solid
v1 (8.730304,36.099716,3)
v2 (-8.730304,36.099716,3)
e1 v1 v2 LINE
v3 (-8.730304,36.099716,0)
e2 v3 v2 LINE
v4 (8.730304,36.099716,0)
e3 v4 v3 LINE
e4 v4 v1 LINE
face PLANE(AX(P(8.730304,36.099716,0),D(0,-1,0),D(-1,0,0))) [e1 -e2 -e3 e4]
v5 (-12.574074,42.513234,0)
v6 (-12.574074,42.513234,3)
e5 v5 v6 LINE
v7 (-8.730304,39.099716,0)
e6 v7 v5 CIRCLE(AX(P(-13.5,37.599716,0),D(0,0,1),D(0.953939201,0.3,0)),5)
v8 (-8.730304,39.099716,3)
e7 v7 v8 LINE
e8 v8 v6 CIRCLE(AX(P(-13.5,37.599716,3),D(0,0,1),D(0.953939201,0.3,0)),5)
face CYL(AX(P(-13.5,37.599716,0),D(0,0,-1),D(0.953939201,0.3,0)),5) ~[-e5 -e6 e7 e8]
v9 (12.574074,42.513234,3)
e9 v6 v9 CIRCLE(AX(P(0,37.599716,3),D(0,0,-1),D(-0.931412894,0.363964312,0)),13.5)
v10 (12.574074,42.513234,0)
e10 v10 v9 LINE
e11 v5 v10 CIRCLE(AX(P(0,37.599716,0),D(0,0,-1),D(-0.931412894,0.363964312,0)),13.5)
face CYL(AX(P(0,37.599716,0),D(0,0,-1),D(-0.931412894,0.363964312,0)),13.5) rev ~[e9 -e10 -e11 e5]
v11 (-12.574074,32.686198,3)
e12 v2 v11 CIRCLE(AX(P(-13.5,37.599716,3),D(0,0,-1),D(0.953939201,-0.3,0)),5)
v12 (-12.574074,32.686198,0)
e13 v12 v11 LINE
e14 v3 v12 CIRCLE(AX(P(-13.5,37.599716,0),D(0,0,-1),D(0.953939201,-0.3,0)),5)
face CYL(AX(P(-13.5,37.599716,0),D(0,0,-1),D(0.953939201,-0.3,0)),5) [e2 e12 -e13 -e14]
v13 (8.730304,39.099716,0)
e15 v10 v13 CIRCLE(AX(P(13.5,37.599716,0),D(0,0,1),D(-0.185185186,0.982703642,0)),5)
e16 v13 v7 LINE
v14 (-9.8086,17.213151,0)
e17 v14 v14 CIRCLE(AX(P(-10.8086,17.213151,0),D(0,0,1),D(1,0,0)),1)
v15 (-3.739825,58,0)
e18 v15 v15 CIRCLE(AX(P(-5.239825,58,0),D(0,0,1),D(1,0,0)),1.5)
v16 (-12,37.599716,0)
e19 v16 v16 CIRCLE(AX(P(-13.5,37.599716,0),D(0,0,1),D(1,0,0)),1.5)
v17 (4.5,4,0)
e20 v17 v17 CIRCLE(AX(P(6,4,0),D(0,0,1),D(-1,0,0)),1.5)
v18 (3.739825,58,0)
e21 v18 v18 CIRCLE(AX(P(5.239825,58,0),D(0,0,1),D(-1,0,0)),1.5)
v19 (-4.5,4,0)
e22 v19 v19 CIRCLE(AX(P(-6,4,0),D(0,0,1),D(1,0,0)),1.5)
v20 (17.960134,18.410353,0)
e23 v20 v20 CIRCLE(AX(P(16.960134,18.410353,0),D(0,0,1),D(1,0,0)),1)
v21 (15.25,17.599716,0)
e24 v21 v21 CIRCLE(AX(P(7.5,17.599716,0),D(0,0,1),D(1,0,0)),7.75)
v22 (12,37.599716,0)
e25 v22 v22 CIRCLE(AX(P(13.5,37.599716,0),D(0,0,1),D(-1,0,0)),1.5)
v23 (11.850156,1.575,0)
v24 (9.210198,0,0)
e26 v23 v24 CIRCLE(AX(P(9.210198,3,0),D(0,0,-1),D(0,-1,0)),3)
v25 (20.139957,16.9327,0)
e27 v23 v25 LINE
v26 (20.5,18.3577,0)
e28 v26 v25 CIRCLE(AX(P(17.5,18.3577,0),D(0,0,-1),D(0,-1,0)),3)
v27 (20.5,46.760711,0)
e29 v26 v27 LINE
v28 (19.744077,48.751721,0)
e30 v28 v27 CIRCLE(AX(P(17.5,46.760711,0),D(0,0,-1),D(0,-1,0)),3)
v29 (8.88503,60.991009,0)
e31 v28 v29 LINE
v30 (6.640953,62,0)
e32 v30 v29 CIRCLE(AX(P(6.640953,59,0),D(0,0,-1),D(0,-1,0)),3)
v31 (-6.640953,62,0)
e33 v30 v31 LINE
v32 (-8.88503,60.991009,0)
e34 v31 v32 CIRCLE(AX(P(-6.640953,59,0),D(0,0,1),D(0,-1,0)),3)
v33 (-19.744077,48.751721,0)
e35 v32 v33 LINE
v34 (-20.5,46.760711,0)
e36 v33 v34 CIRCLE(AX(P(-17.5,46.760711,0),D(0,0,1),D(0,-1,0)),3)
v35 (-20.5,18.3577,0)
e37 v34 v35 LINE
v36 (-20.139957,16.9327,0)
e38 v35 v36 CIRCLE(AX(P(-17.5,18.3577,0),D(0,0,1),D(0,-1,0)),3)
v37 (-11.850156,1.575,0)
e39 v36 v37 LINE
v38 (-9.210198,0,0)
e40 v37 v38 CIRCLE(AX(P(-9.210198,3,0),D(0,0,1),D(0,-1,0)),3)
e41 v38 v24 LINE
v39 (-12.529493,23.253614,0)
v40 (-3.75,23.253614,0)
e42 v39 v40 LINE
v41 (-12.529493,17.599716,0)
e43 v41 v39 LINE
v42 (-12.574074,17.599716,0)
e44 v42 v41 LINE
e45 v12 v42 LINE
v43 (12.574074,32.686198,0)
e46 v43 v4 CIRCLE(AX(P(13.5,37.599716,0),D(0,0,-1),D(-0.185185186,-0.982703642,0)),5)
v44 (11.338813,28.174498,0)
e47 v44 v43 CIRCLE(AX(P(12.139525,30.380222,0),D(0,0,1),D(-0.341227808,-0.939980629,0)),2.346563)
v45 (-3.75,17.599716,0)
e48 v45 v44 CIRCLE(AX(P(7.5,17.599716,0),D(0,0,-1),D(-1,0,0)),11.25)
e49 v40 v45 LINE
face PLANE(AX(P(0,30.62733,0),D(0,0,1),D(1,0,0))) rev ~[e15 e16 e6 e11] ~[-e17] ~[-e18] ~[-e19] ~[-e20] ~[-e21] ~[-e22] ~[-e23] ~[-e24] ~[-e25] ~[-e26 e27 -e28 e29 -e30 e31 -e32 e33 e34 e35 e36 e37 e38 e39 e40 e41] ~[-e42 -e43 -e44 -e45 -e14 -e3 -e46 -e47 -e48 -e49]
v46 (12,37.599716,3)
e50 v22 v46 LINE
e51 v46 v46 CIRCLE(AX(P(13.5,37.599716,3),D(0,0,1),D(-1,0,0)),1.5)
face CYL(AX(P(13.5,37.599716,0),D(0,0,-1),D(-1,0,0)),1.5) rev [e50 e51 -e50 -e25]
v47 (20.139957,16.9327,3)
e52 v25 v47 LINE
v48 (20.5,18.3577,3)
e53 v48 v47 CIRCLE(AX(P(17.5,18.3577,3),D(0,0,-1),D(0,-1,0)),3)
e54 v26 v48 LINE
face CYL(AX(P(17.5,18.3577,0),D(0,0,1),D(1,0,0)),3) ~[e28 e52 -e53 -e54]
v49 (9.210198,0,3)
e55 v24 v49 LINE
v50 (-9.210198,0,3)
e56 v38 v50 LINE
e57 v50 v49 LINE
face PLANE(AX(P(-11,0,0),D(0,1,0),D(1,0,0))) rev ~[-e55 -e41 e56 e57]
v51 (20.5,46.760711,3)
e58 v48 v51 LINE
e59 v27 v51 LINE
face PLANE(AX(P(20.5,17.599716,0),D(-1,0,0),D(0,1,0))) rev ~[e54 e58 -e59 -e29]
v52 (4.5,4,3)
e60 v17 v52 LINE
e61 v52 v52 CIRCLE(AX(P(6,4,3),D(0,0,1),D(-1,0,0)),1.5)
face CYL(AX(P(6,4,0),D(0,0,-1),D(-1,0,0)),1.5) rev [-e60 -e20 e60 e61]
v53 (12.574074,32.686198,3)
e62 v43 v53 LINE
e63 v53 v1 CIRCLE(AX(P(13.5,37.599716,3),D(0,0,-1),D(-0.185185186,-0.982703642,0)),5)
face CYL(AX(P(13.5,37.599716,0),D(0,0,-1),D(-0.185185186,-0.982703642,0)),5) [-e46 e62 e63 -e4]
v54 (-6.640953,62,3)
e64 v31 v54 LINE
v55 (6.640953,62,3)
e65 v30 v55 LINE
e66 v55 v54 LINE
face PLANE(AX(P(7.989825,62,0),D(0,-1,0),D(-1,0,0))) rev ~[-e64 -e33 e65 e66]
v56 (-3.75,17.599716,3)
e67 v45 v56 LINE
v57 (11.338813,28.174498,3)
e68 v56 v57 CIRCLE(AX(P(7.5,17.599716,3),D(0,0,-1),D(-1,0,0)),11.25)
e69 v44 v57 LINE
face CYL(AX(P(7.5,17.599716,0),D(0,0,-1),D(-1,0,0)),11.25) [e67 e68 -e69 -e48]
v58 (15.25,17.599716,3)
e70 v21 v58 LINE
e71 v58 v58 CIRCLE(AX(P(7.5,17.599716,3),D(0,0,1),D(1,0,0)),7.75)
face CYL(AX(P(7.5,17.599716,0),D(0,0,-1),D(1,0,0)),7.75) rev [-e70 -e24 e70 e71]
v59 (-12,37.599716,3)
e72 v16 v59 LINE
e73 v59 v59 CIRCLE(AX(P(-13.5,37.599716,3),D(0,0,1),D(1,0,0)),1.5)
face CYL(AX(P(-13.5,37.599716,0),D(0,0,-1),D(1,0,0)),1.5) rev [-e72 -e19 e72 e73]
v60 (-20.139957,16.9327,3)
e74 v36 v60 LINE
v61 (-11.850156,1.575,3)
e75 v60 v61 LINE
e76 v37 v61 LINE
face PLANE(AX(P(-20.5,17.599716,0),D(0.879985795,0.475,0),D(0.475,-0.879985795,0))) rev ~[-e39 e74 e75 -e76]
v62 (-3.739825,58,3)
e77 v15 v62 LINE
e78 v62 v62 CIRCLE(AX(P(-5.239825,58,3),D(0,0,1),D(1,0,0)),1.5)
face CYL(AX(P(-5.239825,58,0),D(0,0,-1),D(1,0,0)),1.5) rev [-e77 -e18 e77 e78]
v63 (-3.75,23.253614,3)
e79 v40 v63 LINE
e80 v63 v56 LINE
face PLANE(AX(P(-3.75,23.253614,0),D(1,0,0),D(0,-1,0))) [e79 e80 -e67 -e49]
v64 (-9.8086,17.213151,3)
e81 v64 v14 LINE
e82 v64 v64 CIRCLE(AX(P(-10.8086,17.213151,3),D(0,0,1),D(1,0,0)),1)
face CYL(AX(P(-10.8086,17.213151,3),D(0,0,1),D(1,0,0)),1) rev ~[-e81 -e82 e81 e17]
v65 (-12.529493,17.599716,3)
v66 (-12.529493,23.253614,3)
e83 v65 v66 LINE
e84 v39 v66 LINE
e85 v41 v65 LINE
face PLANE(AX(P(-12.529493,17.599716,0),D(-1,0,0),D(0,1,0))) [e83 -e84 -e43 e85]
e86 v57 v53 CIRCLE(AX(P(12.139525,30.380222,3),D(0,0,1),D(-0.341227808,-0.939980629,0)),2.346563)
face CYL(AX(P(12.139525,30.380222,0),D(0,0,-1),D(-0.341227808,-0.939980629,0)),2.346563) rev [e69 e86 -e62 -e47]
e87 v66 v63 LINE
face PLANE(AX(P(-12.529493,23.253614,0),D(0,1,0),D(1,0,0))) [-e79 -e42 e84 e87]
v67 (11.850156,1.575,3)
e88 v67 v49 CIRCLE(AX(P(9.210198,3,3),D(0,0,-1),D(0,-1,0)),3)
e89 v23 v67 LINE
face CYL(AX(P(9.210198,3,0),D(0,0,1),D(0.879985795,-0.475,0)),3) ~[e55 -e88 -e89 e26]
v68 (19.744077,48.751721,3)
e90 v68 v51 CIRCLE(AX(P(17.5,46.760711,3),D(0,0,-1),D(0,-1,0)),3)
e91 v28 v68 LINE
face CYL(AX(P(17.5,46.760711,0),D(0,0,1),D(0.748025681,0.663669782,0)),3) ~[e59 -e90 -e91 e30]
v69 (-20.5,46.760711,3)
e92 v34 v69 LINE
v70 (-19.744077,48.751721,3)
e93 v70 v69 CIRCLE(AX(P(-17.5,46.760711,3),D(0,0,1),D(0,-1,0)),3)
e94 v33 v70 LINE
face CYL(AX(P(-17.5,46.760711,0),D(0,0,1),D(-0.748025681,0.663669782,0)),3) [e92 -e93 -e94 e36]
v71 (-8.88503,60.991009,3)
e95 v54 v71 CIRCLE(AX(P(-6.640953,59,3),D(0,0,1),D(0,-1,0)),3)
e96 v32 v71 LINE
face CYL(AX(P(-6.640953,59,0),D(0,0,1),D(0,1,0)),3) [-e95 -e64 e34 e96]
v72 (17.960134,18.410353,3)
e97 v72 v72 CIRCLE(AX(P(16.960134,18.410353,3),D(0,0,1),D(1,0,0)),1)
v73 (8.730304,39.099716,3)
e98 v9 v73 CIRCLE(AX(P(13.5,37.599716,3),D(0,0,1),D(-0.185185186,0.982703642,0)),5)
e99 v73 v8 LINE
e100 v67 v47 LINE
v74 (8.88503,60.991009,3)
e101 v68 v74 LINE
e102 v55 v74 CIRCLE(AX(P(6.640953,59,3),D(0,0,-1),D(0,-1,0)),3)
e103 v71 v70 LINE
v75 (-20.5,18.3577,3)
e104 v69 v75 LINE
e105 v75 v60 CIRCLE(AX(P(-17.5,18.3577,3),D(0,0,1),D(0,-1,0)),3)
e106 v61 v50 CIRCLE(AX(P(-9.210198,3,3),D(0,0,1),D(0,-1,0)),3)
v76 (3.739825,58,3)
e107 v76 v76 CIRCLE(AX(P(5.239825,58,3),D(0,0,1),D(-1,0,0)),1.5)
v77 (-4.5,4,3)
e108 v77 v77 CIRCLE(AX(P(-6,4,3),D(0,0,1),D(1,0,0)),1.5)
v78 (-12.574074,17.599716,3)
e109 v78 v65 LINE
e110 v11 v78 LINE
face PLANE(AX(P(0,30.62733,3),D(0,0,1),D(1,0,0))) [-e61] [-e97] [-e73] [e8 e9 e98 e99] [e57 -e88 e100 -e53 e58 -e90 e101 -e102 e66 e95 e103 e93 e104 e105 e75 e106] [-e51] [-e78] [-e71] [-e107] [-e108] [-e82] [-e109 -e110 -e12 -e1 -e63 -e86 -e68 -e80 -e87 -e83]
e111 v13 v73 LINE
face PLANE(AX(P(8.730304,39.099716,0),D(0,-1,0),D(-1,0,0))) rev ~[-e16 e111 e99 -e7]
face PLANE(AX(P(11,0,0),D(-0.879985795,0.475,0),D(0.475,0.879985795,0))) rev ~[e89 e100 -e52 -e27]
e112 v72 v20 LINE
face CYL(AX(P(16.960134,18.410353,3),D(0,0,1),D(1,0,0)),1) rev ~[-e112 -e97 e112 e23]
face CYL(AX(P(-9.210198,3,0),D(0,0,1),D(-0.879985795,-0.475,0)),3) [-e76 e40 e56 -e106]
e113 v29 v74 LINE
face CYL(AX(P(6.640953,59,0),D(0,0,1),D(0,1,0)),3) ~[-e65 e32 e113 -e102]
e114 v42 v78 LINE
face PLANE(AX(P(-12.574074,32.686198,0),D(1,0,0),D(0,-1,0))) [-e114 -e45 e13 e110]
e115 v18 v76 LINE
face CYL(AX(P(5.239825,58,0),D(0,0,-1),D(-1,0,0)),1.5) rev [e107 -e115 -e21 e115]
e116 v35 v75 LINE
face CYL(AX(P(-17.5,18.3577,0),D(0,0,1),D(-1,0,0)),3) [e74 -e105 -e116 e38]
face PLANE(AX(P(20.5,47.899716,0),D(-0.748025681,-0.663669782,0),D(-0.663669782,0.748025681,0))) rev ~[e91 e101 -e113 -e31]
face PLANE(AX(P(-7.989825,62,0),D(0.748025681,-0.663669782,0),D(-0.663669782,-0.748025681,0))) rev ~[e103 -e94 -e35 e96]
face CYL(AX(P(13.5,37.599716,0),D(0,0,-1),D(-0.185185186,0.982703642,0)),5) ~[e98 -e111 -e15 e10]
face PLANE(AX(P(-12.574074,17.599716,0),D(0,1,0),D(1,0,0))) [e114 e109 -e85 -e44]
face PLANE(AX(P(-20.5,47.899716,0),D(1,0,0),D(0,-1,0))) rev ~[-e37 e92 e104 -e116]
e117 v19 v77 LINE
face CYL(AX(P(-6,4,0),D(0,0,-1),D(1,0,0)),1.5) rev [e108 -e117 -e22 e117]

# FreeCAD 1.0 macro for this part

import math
import FreeCAD as App
import Part
import Sketcher
from FreeCAD import Vector
Q = App.Units.Quantity


def edges_at(feature, points):
    """Names of the edges that pass closest to the given points."""
    edges = feature.Shape.Edges
    near = lambda p: min(range(len(edges)), key=lambda i: edges[i].distToShape(Part.Vertex(*p))[0])
    return sorted({f"Edge{near(p) + 1}" for p in points})


def add_polygon(sketch, points):
    """Adds a closed chain of lines whose ends are joined by coincident constraints."""
    first, n = sketch.GeometryCount, len(points)
    for a, b in zip(points, points[1:] + points[:1]):
        sketch.addGeometry(Part.LineSegment(App.Vector(*a, 0), App.Vector(*b, 0)), False)
    for i in range(n):
        sketch.addConstraint(Sketcher.Constraint("Coincident", first + i, 2, first + (i + 1) % n, 1))

doc = App.newDocument("Part")
params = doc.addObject("Spreadsheet::Sheet", "Params")
for row, (alias, value) in enumerate([
    ("sketch1_diameter", "3 mm"),
    ("sketch1_radius", "5 mm"),
    ("sketch1_diameter2", "15.5 mm"),
    ("sketch1_radius2", "13.5 mm"),
    ("sketch1_width", "22 mm"),
    ("pad1_length", "3 mm"),
    ("fillet_radius", "3 mm"),
    ("sketch2_diameter", "2 mm"),
    ("pocket1_length", "10 mm"),
], start=1):
    params.set(f"A{row}", alias)
    params.set(f"B{row}", "=" + value)
    params.setAlias(f"B{row}", alias)

body = doc.addObject("PartDesign::Body", "Body")

sketch1 = body.newObject("Sketcher::SketchObject", "Sketch")
sketch1.AttachmentSupport = (doc.getObject("XY_Plane"), [""])
sketch1.MapMode = "FlatFace"
add_polygon(sketch1, [(7.99, 62), (-7.99, 62), (-20.5, 47.9), (-20.5, 17.6), (-11, 0), (11, 0), (20.5, 17.6), (20.5, 47.9)])
sketch1.addGeometry(Part.Circle(Vector(-6, 4, 0), Vector(0, 0, 1), 1.5), False)
sketch1.addGeometry(Part.Circle(Vector(6, 4, 0), Vector(0, 0, 1), 1.5), False)
sketch1.addGeometry(Part.Circle(Vector(7.5, 17.6, 0), Vector(0, 0, 1), 7.75), False)
sketch1.addGeometry(Part.LineSegment(Vector(-8.73, 36.1, 0), Vector(8.73, 36.1, 0)), False)
sketch1.addGeometry(Part.ArcOfCircle(Part.Circle(Vector(13.5, 37.6, 0), Vector(0, 0, 1), 5), math.radians(-163), math.radians(-101)), False)
sketch1.addGeometry(Part.ArcOfCircle(Part.Circle(Vector(12.14, 30.38, 0), Vector(0, 0, 1), 2.347), math.radians(-110), math.radians(79)), False)
sketch1.addGeometry(Part.ArcOfCircle(Part.Circle(Vector(7.5, 17.6, 0), Vector(0, 0, 1), 11.25), math.radians(70), math.radians(180)), False)
sketch1.addGeometry(Part.LineSegment(Vector(-3.75, 17.6, 0), Vector(-3.75, 23.254, 0)), False)
sketch1.addGeometry(Part.LineSegment(Vector(-3.75, 23.254, 0), Vector(-12.529, 23.254, 0)), False)
sketch1.addGeometry(Part.LineSegment(Vector(-12.529, 23.254, 0), Vector(-12.529, 17.6, 0)), False)
sketch1.addGeometry(Part.LineSegment(Vector(-12.529, 17.6, 0), Vector(-12.574, 17.6, 0)), False)
sketch1.addGeometry(Part.LineSegment(Vector(-12.574, 17.6, 0), Vector(-12.574, 32.686, 0)), False)
sketch1.addGeometry(Part.ArcOfCircle(Part.Circle(Vector(-13.5, 37.6, 0), Vector(0, 0, 1), 5), math.radians(-79), math.radians(-17)), False)
sketch1.addGeometry(Part.Circle(Vector(-13.5, 37.6, 0), Vector(0, 0, 1), 1.5), False)
sketch1.addGeometry(Part.ArcOfCircle(Part.Circle(Vector(13.5, 37.6, 0), Vector(0, 0, 1), 5), math.radians(101), math.radians(163)), False)
sketch1.addGeometry(Part.LineSegment(Vector(8.73, 39.1, 0), Vector(-8.73, 39.1, 0)), False)
sketch1.addGeometry(Part.ArcOfCircle(Part.Circle(Vector(-13.5, 37.6, 0), Vector(0, 0, 1), 5), math.radians(17), math.radians(79)), False)
sketch1.addGeometry(Part.ArcOfCircle(Part.Circle(Vector(0, 37.6, 0), Vector(0, 0, 1), 13.5), math.radians(21), math.radians(159)), False)
sketch1.addGeometry(Part.Circle(Vector(-5.24, 58, 0), Vector(0, 0, 1), 1.5), False)
sketch1.addGeometry(Part.Circle(Vector(13.5, 37.6, 0), Vector(0, 0, 1), 1.5), False)
sketch1.addGeometry(Part.Circle(Vector(5.24, 58, 0), Vector(0, 0, 1), 1.5), False)
sketch1.addConstraint([
    Sketcher.Constraint("Coincident", 11, 2, 12, 1),
    Sketcher.Constraint("Tangent", 12, 2, 13, 2),
    Sketcher.Constraint("Tangent", 13, 1, 14, 1),
    Sketcher.Constraint("Tangent", 14, 2, 15, 1),
    Sketcher.Constraint("Coincident", 15, 2, 16, 1),
    Sketcher.Constraint("Coincident", 16, 2, 17, 1),
    Sketcher.Constraint("Coincident", 17, 2, 18, 1),
    Sketcher.Constraint("Coincident", 18, 2, 19, 1),
    Sketcher.Constraint("Coincident", 19, 2, 20, 1),
    Sketcher.Constraint("Coincident", 20, 2, 11, 1),
    Sketcher.Constraint("Coincident", 22, 2, 23, 1),
    Sketcher.Constraint("Coincident", 23, 2, 24, 1),
    Sketcher.Constraint("Coincident", 24, 2, 25, 2),
    Sketcher.Constraint("Coincident", 25, 1, 22, 1),
    Sketcher.Constraint("Horizontal", 0),
    Sketcher.Constraint("Vertical", 2),
    Sketcher.Constraint("Horizontal", 4),
    Sketcher.Constraint("Vertical", 6),
    Sketcher.Constraint("Horizontal", 11),
    Sketcher.Constraint("Vertical", 15),
    Sketcher.Constraint("Horizontal", 16),
    Sketcher.Constraint("Vertical", 17),
    Sketcher.Constraint("Horizontal", 18),
    Sketcher.Constraint("Vertical", 19),
    Sketcher.Constraint("Horizontal", 23),
    Sketcher.Constraint("Coincident", 14, 3, 10, 3),
    Sketcher.Constraint("Coincident", 21, 3, 20, 3),
    Sketcher.Constraint("Coincident", 22, 3, 12, 3),
    Sketcher.Constraint("Coincident", 24, 3, 20, 3),
    Sketcher.Constraint("Coincident", 27, 3, 12, 3),
    Sketcher.Constraint("Equal", 8, 9),
    Sketcher.Constraint("Equal", 12, 20),
    Sketcher.Constraint("Equal", 9, 21),
    Sketcher.Constraint("Equal", 20, 22),
    Sketcher.Constraint("Equal", 22, 24),
    Sketcher.Constraint("Equal", 21, 26),
    Sketcher.Constraint("Equal", 26, 27),
    Sketcher.Constraint("Equal", 27, 28),
    Sketcher.Constraint("Symmetric", 3, 2, 4, 2, -1, 1),
    Sketcher.Constraint("Symmetric", 8, 3, 9, 3, -2),
    Sketcher.Constraint("Symmetric", 12, 3, 20, 3, -2),
    Sketcher.Constraint("Symmetric", 26, 3, 28, 3, -2),
    Sketcher.Constraint("Symmetric", 2, 2, 5, 2, -2),
    Sketcher.Constraint("PointOnObject", 25, 3, -2),
    Sketcher.Constraint("Horizontal", 24, 3, 25, 3),
    Sketcher.Constraint("Horizontal", 14, 3, 2, 2),
    Sketcher.Constraint("Horizontal", 1, 2, 6, 2),
    Sketcher.Constraint("Horizontal", 14, 2, 17, 2),
    Sketcher.Constraint("Horizontal", 12, 2, 19, 2),
    Sketcher.Constraint("Vertical", 11, 2, 22, 2),
    Sketcher.Constraint("Vertical", 19, 2, 24, 2),
    Sketcher.Constraint("Equal", 1, 7),
    Sketcher.Constraint("Diameter", 8, Q("3 mm")),
    Sketcher.Constraint("Radius", 12, Q("5 mm")),
    Sketcher.Constraint("Diameter", 10, Q("15.5 mm")),
    Sketcher.Constraint("Radius", 25, Q("13.5 mm")),
    Sketcher.Constraint("DistanceX", 4, 1, 4, 2, Q("22 mm")),
    Sketcher.Constraint("Radius", 14, Q("11.25 mm")),
    Sketcher.Constraint("Distance", 3, Q("20 mm")),
    Sketcher.Constraint("DistanceY", 2, 2, 2, 1, Q("30.3 mm")),
    Sketcher.Constraint("DistanceX", 8, 3, -1, 1, Q("6 mm")),
    Sketcher.Constraint("DistanceY", -1, 1, 8, 3, Q("4 mm")),
    Sketcher.Constraint("DistanceY", -1, 1, 26, 3, Q("58 mm")),
    Sketcher.Constraint("DistanceY", -1, 1, 0, 2, Q("62 mm")),
    Sketcher.Constraint("DistanceX", 10, 3, 12, 3, Q("6 mm")),
    Sketcher.Constraint("DistanceY", 10, 3, 12, 3, Q("20 mm")),
    Sketcher.Constraint("DistanceX", 20, 3, 12, 3, Q("27 mm")),
    Sketcher.Constraint("DistanceX", 1, 2, 20, 3, Q("7 mm")),
    Sketcher.Constraint("DistanceY", 11, 2, 22, 2, Q("3 mm")),
    Sketcher.Constraint("Distance", 1, Q("18.85 mm")),
    Sketcher.Constraint("DistanceX", 0, 2, 26, 3, Q("2.75 mm")),
    Sketcher.Constraint("DistanceY", 15, 1, 15, 2, Q("5.653899 mm")),
    Sketcher.Constraint("DistanceX", 18, 2, 18, 1, Q("0.044581 mm")),
])
sketch1.setExpression("Constraints[60]", "Params.sketch1_diameter")
sketch1.setExpression("Constraints[61]", "Params.sketch1_radius")
sketch1.setExpression("Constraints[62]", "Params.sketch1_diameter2")
sketch1.setExpression("Constraints[63]", "Params.sketch1_radius2")
sketch1.setExpression("Constraints[64]", "Params.sketch1_width")
pad1 = body.newObject("PartDesign::Pad", "Pad")
pad1.Profile = sketch1
pad1.setExpression("Length", "Params.pad1_length")
doc.recompute()

fillet = body.newObject("PartDesign::Fillet", "Fillet")
fillet.Base = (pad1, edges_at(pad1, [
    (-11, 0, 1.5),
    (-20.5, 17.6, 1.5),
    (-20.5, 47.9, 1.5),
    (-7.99, 62, 1.5),
    (7.99, 62, 1.5),
    (20.5, 47.9, 1.5),
    (20.5, 17.6, 1.5),
    (11, 0, 1.5),
]))
fillet.setExpression("Radius", "Params.fillet_radius")

sketch2 = body.newObject("Sketcher::SketchObject", "Sketch001")
sketch2.AttachmentSupport = (doc.getObject("XY_Plane"), [""])
sketch2.MapMode = "FlatFace"
sketch2.AttachmentOffset = App.Placement(Vector(0, 0, 3), App.Rotation())
sketch2.addGeometry([
    Part.Circle(Vector(17, 18.4, 0), Vector(0, 0, 1), 1),
    Part.Circle(Vector(-10.8, 17.2, 0), Vector(0, 0, 1), 1),
], False)
sketch2.addConstraint([
    Sketcher.Constraint("Equal", 0, 1),
    Sketcher.Constraint("Diameter", 0, Q("2 mm")),
    Sketcher.Constraint("DistanceX", 1, 3, -1, 1, Q("10.8086 mm")),
    Sketcher.Constraint("DistanceY", -1, 1, 1, 3, Q("17.213151 mm")),
    Sketcher.Constraint("DistanceX", -1, 1, 0, 3, Q("16.960134 mm")),
    Sketcher.Constraint("DistanceY", -1, 1, 0, 3, Q("18.410353 mm")),
])
sketch2.setExpression("Constraints[1]", "Params.sketch2_diameter")
pocket1 = body.newObject("PartDesign::Pocket", "Pocket")
pocket1.Profile = sketch2
pocket1.setExpression("Length", "Params.pocket1_length")

doc.recompute()
